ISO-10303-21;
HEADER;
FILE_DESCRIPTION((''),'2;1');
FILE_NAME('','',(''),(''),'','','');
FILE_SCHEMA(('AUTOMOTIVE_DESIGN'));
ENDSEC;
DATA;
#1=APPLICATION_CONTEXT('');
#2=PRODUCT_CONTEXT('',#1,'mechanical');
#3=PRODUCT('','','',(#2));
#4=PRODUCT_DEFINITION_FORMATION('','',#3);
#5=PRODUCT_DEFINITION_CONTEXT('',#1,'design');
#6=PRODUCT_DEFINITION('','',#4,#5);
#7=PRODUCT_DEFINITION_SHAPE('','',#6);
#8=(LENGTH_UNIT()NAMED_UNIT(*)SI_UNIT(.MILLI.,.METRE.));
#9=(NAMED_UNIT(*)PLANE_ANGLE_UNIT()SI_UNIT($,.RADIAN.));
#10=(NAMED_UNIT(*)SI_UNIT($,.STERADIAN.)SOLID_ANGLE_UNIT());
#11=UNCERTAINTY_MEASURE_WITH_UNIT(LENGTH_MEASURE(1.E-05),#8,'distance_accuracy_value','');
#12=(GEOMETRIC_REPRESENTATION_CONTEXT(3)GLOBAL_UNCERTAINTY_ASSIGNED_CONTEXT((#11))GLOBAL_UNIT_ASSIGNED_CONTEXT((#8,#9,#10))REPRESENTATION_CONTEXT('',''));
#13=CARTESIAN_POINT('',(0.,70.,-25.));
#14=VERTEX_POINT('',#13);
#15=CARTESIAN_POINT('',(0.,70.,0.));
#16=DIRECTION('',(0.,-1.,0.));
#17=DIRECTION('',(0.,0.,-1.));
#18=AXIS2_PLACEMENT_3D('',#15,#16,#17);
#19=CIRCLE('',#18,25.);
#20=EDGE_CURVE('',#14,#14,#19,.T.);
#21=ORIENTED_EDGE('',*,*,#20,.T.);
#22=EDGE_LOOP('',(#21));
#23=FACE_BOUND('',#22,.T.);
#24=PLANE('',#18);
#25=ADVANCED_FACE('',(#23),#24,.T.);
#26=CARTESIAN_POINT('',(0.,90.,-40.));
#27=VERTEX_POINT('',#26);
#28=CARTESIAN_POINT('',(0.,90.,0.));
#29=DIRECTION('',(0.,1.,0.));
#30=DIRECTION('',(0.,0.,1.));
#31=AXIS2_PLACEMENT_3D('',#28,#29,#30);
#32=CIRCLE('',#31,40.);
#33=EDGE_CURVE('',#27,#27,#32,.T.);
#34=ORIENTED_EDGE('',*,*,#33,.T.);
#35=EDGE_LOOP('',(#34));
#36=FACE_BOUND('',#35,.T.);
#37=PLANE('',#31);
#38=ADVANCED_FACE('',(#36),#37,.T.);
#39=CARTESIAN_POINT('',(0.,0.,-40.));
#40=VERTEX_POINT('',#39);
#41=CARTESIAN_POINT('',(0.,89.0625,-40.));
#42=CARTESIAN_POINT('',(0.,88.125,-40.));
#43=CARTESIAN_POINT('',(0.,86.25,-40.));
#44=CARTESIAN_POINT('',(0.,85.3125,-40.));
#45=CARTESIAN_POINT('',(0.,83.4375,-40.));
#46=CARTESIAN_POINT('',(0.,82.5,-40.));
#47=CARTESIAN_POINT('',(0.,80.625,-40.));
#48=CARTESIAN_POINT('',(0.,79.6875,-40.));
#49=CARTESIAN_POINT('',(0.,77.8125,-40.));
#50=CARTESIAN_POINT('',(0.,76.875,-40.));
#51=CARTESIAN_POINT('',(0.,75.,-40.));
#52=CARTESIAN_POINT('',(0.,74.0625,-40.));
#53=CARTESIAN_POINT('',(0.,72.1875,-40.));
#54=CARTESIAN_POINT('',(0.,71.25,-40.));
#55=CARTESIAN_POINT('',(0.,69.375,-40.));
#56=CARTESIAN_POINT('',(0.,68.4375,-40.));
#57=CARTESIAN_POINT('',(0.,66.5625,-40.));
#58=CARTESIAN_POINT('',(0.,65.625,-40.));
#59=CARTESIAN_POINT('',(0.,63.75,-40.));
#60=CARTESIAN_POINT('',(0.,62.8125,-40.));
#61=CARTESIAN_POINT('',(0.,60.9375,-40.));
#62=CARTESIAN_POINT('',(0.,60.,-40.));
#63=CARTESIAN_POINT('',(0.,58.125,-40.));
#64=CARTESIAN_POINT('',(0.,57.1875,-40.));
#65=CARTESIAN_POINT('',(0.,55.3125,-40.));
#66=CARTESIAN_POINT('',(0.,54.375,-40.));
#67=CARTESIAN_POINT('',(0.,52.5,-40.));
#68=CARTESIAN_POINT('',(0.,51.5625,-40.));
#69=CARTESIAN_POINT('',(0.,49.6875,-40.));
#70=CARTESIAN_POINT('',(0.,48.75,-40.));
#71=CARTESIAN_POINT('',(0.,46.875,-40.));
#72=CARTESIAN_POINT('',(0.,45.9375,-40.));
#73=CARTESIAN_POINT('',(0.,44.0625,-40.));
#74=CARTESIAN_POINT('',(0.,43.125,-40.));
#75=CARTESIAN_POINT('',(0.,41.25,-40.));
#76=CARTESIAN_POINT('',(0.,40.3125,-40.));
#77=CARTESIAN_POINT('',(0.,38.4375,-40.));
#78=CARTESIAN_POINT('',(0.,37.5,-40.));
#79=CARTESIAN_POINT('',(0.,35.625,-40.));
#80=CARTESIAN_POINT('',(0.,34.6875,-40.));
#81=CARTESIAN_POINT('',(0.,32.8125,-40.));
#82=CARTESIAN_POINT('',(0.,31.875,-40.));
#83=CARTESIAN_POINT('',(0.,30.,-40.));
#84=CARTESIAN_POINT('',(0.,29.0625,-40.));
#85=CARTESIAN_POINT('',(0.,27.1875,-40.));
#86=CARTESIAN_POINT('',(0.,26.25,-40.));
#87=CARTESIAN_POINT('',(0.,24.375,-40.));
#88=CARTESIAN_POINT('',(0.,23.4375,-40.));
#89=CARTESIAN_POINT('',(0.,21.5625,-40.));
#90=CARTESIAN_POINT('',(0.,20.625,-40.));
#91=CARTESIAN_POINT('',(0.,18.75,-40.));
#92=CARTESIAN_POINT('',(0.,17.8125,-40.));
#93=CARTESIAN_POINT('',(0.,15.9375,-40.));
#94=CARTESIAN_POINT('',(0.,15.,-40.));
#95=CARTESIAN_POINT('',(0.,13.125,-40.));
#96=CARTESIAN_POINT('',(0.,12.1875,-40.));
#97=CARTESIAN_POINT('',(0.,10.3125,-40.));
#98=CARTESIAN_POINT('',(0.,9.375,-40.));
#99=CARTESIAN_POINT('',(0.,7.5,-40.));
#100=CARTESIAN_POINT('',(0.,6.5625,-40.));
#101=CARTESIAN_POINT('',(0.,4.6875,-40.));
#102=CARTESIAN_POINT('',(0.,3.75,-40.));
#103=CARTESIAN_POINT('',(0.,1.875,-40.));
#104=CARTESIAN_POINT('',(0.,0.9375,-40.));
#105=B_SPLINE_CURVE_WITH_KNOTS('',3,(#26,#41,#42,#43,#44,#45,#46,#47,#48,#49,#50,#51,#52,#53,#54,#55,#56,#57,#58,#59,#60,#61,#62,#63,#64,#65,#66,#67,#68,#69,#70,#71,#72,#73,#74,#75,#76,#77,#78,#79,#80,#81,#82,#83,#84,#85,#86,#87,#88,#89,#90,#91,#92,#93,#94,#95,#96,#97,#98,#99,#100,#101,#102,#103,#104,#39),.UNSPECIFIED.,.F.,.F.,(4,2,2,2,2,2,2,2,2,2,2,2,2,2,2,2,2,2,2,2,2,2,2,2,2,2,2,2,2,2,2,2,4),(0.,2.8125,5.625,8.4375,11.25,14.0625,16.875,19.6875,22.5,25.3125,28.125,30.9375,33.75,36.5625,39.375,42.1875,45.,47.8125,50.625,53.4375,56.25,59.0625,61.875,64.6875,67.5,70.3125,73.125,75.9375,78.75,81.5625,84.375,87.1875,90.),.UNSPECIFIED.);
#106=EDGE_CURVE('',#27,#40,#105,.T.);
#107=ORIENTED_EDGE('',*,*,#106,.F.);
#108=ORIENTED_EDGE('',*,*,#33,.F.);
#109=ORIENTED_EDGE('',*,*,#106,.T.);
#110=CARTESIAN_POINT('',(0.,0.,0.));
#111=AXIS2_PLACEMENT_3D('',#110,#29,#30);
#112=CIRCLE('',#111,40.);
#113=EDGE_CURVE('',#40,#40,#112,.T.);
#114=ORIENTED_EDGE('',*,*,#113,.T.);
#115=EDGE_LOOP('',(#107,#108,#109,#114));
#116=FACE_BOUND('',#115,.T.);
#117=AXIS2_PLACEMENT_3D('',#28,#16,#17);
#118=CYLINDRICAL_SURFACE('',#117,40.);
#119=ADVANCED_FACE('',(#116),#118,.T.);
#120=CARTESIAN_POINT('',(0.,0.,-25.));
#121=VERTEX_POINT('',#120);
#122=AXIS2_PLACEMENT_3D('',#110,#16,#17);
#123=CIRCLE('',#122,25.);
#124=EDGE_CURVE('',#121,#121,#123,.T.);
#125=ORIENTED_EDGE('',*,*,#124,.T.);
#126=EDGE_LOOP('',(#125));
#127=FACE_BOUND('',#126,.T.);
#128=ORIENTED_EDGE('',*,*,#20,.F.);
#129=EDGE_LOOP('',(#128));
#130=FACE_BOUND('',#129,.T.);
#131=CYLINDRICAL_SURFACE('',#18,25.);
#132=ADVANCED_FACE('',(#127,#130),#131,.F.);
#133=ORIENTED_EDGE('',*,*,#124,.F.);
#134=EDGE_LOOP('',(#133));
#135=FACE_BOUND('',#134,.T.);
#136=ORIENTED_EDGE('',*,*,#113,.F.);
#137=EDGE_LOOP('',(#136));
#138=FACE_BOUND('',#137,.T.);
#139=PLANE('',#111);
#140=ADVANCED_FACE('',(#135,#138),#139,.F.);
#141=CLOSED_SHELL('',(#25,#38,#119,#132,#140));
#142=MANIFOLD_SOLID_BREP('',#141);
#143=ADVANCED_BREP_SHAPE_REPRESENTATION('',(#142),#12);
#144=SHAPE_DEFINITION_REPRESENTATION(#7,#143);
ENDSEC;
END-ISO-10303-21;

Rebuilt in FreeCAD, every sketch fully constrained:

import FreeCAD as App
import Part
import Sketcher

V = App.Vector
Q = App.Units.Quantity

doc = App.newDocument("Part")
body = doc.addObject("PartDesign::Body", "Body")

sketch1 = body.newObject("Sketcher::SketchObject", "Sketch")
sketch1.AttachmentSupport = (doc.getObject("XZ_Plane"), [""])
sketch1.MapMode = "FlatFace"
sketch1.addGeometry(Part.Circle(V(0, 0, 0), V(0, 0, 1), 40), False)
sketch1.addConstraint([
    Sketcher.Constraint("Coincident", 0, 3, -1, 1),
    Sketcher.Constraint("Diameter", 0, Q("80 mm")),
])
pad1 = body.newObject("PartDesign::Pad", "Pad")
pad1.Profile = sketch1
pad1.Length = 90
pad1.Reversed = True

sketch2 = body.newObject("Sketcher::SketchObject", "Sketch001")
sketch2.AttachmentSupport = (doc.getObject("XZ_Plane"), [""])
sketch2.MapMode = "FlatFace"
sketch2.addGeometry(Part.Circle(V(0, 0, 0), V(0, 0, 1), 25), False)
sketch2.addConstraint([
    Sketcher.Constraint("Coincident", 0, 3, -1, 1),
    Sketcher.Constraint("Diameter", 0, Q("50 mm")),
])
pocket1 = body.newObject("PartDesign::Pocket", "Pocket")
pocket1.Profile = sketch2
pocket1.Length = 70

doc.recompute()
